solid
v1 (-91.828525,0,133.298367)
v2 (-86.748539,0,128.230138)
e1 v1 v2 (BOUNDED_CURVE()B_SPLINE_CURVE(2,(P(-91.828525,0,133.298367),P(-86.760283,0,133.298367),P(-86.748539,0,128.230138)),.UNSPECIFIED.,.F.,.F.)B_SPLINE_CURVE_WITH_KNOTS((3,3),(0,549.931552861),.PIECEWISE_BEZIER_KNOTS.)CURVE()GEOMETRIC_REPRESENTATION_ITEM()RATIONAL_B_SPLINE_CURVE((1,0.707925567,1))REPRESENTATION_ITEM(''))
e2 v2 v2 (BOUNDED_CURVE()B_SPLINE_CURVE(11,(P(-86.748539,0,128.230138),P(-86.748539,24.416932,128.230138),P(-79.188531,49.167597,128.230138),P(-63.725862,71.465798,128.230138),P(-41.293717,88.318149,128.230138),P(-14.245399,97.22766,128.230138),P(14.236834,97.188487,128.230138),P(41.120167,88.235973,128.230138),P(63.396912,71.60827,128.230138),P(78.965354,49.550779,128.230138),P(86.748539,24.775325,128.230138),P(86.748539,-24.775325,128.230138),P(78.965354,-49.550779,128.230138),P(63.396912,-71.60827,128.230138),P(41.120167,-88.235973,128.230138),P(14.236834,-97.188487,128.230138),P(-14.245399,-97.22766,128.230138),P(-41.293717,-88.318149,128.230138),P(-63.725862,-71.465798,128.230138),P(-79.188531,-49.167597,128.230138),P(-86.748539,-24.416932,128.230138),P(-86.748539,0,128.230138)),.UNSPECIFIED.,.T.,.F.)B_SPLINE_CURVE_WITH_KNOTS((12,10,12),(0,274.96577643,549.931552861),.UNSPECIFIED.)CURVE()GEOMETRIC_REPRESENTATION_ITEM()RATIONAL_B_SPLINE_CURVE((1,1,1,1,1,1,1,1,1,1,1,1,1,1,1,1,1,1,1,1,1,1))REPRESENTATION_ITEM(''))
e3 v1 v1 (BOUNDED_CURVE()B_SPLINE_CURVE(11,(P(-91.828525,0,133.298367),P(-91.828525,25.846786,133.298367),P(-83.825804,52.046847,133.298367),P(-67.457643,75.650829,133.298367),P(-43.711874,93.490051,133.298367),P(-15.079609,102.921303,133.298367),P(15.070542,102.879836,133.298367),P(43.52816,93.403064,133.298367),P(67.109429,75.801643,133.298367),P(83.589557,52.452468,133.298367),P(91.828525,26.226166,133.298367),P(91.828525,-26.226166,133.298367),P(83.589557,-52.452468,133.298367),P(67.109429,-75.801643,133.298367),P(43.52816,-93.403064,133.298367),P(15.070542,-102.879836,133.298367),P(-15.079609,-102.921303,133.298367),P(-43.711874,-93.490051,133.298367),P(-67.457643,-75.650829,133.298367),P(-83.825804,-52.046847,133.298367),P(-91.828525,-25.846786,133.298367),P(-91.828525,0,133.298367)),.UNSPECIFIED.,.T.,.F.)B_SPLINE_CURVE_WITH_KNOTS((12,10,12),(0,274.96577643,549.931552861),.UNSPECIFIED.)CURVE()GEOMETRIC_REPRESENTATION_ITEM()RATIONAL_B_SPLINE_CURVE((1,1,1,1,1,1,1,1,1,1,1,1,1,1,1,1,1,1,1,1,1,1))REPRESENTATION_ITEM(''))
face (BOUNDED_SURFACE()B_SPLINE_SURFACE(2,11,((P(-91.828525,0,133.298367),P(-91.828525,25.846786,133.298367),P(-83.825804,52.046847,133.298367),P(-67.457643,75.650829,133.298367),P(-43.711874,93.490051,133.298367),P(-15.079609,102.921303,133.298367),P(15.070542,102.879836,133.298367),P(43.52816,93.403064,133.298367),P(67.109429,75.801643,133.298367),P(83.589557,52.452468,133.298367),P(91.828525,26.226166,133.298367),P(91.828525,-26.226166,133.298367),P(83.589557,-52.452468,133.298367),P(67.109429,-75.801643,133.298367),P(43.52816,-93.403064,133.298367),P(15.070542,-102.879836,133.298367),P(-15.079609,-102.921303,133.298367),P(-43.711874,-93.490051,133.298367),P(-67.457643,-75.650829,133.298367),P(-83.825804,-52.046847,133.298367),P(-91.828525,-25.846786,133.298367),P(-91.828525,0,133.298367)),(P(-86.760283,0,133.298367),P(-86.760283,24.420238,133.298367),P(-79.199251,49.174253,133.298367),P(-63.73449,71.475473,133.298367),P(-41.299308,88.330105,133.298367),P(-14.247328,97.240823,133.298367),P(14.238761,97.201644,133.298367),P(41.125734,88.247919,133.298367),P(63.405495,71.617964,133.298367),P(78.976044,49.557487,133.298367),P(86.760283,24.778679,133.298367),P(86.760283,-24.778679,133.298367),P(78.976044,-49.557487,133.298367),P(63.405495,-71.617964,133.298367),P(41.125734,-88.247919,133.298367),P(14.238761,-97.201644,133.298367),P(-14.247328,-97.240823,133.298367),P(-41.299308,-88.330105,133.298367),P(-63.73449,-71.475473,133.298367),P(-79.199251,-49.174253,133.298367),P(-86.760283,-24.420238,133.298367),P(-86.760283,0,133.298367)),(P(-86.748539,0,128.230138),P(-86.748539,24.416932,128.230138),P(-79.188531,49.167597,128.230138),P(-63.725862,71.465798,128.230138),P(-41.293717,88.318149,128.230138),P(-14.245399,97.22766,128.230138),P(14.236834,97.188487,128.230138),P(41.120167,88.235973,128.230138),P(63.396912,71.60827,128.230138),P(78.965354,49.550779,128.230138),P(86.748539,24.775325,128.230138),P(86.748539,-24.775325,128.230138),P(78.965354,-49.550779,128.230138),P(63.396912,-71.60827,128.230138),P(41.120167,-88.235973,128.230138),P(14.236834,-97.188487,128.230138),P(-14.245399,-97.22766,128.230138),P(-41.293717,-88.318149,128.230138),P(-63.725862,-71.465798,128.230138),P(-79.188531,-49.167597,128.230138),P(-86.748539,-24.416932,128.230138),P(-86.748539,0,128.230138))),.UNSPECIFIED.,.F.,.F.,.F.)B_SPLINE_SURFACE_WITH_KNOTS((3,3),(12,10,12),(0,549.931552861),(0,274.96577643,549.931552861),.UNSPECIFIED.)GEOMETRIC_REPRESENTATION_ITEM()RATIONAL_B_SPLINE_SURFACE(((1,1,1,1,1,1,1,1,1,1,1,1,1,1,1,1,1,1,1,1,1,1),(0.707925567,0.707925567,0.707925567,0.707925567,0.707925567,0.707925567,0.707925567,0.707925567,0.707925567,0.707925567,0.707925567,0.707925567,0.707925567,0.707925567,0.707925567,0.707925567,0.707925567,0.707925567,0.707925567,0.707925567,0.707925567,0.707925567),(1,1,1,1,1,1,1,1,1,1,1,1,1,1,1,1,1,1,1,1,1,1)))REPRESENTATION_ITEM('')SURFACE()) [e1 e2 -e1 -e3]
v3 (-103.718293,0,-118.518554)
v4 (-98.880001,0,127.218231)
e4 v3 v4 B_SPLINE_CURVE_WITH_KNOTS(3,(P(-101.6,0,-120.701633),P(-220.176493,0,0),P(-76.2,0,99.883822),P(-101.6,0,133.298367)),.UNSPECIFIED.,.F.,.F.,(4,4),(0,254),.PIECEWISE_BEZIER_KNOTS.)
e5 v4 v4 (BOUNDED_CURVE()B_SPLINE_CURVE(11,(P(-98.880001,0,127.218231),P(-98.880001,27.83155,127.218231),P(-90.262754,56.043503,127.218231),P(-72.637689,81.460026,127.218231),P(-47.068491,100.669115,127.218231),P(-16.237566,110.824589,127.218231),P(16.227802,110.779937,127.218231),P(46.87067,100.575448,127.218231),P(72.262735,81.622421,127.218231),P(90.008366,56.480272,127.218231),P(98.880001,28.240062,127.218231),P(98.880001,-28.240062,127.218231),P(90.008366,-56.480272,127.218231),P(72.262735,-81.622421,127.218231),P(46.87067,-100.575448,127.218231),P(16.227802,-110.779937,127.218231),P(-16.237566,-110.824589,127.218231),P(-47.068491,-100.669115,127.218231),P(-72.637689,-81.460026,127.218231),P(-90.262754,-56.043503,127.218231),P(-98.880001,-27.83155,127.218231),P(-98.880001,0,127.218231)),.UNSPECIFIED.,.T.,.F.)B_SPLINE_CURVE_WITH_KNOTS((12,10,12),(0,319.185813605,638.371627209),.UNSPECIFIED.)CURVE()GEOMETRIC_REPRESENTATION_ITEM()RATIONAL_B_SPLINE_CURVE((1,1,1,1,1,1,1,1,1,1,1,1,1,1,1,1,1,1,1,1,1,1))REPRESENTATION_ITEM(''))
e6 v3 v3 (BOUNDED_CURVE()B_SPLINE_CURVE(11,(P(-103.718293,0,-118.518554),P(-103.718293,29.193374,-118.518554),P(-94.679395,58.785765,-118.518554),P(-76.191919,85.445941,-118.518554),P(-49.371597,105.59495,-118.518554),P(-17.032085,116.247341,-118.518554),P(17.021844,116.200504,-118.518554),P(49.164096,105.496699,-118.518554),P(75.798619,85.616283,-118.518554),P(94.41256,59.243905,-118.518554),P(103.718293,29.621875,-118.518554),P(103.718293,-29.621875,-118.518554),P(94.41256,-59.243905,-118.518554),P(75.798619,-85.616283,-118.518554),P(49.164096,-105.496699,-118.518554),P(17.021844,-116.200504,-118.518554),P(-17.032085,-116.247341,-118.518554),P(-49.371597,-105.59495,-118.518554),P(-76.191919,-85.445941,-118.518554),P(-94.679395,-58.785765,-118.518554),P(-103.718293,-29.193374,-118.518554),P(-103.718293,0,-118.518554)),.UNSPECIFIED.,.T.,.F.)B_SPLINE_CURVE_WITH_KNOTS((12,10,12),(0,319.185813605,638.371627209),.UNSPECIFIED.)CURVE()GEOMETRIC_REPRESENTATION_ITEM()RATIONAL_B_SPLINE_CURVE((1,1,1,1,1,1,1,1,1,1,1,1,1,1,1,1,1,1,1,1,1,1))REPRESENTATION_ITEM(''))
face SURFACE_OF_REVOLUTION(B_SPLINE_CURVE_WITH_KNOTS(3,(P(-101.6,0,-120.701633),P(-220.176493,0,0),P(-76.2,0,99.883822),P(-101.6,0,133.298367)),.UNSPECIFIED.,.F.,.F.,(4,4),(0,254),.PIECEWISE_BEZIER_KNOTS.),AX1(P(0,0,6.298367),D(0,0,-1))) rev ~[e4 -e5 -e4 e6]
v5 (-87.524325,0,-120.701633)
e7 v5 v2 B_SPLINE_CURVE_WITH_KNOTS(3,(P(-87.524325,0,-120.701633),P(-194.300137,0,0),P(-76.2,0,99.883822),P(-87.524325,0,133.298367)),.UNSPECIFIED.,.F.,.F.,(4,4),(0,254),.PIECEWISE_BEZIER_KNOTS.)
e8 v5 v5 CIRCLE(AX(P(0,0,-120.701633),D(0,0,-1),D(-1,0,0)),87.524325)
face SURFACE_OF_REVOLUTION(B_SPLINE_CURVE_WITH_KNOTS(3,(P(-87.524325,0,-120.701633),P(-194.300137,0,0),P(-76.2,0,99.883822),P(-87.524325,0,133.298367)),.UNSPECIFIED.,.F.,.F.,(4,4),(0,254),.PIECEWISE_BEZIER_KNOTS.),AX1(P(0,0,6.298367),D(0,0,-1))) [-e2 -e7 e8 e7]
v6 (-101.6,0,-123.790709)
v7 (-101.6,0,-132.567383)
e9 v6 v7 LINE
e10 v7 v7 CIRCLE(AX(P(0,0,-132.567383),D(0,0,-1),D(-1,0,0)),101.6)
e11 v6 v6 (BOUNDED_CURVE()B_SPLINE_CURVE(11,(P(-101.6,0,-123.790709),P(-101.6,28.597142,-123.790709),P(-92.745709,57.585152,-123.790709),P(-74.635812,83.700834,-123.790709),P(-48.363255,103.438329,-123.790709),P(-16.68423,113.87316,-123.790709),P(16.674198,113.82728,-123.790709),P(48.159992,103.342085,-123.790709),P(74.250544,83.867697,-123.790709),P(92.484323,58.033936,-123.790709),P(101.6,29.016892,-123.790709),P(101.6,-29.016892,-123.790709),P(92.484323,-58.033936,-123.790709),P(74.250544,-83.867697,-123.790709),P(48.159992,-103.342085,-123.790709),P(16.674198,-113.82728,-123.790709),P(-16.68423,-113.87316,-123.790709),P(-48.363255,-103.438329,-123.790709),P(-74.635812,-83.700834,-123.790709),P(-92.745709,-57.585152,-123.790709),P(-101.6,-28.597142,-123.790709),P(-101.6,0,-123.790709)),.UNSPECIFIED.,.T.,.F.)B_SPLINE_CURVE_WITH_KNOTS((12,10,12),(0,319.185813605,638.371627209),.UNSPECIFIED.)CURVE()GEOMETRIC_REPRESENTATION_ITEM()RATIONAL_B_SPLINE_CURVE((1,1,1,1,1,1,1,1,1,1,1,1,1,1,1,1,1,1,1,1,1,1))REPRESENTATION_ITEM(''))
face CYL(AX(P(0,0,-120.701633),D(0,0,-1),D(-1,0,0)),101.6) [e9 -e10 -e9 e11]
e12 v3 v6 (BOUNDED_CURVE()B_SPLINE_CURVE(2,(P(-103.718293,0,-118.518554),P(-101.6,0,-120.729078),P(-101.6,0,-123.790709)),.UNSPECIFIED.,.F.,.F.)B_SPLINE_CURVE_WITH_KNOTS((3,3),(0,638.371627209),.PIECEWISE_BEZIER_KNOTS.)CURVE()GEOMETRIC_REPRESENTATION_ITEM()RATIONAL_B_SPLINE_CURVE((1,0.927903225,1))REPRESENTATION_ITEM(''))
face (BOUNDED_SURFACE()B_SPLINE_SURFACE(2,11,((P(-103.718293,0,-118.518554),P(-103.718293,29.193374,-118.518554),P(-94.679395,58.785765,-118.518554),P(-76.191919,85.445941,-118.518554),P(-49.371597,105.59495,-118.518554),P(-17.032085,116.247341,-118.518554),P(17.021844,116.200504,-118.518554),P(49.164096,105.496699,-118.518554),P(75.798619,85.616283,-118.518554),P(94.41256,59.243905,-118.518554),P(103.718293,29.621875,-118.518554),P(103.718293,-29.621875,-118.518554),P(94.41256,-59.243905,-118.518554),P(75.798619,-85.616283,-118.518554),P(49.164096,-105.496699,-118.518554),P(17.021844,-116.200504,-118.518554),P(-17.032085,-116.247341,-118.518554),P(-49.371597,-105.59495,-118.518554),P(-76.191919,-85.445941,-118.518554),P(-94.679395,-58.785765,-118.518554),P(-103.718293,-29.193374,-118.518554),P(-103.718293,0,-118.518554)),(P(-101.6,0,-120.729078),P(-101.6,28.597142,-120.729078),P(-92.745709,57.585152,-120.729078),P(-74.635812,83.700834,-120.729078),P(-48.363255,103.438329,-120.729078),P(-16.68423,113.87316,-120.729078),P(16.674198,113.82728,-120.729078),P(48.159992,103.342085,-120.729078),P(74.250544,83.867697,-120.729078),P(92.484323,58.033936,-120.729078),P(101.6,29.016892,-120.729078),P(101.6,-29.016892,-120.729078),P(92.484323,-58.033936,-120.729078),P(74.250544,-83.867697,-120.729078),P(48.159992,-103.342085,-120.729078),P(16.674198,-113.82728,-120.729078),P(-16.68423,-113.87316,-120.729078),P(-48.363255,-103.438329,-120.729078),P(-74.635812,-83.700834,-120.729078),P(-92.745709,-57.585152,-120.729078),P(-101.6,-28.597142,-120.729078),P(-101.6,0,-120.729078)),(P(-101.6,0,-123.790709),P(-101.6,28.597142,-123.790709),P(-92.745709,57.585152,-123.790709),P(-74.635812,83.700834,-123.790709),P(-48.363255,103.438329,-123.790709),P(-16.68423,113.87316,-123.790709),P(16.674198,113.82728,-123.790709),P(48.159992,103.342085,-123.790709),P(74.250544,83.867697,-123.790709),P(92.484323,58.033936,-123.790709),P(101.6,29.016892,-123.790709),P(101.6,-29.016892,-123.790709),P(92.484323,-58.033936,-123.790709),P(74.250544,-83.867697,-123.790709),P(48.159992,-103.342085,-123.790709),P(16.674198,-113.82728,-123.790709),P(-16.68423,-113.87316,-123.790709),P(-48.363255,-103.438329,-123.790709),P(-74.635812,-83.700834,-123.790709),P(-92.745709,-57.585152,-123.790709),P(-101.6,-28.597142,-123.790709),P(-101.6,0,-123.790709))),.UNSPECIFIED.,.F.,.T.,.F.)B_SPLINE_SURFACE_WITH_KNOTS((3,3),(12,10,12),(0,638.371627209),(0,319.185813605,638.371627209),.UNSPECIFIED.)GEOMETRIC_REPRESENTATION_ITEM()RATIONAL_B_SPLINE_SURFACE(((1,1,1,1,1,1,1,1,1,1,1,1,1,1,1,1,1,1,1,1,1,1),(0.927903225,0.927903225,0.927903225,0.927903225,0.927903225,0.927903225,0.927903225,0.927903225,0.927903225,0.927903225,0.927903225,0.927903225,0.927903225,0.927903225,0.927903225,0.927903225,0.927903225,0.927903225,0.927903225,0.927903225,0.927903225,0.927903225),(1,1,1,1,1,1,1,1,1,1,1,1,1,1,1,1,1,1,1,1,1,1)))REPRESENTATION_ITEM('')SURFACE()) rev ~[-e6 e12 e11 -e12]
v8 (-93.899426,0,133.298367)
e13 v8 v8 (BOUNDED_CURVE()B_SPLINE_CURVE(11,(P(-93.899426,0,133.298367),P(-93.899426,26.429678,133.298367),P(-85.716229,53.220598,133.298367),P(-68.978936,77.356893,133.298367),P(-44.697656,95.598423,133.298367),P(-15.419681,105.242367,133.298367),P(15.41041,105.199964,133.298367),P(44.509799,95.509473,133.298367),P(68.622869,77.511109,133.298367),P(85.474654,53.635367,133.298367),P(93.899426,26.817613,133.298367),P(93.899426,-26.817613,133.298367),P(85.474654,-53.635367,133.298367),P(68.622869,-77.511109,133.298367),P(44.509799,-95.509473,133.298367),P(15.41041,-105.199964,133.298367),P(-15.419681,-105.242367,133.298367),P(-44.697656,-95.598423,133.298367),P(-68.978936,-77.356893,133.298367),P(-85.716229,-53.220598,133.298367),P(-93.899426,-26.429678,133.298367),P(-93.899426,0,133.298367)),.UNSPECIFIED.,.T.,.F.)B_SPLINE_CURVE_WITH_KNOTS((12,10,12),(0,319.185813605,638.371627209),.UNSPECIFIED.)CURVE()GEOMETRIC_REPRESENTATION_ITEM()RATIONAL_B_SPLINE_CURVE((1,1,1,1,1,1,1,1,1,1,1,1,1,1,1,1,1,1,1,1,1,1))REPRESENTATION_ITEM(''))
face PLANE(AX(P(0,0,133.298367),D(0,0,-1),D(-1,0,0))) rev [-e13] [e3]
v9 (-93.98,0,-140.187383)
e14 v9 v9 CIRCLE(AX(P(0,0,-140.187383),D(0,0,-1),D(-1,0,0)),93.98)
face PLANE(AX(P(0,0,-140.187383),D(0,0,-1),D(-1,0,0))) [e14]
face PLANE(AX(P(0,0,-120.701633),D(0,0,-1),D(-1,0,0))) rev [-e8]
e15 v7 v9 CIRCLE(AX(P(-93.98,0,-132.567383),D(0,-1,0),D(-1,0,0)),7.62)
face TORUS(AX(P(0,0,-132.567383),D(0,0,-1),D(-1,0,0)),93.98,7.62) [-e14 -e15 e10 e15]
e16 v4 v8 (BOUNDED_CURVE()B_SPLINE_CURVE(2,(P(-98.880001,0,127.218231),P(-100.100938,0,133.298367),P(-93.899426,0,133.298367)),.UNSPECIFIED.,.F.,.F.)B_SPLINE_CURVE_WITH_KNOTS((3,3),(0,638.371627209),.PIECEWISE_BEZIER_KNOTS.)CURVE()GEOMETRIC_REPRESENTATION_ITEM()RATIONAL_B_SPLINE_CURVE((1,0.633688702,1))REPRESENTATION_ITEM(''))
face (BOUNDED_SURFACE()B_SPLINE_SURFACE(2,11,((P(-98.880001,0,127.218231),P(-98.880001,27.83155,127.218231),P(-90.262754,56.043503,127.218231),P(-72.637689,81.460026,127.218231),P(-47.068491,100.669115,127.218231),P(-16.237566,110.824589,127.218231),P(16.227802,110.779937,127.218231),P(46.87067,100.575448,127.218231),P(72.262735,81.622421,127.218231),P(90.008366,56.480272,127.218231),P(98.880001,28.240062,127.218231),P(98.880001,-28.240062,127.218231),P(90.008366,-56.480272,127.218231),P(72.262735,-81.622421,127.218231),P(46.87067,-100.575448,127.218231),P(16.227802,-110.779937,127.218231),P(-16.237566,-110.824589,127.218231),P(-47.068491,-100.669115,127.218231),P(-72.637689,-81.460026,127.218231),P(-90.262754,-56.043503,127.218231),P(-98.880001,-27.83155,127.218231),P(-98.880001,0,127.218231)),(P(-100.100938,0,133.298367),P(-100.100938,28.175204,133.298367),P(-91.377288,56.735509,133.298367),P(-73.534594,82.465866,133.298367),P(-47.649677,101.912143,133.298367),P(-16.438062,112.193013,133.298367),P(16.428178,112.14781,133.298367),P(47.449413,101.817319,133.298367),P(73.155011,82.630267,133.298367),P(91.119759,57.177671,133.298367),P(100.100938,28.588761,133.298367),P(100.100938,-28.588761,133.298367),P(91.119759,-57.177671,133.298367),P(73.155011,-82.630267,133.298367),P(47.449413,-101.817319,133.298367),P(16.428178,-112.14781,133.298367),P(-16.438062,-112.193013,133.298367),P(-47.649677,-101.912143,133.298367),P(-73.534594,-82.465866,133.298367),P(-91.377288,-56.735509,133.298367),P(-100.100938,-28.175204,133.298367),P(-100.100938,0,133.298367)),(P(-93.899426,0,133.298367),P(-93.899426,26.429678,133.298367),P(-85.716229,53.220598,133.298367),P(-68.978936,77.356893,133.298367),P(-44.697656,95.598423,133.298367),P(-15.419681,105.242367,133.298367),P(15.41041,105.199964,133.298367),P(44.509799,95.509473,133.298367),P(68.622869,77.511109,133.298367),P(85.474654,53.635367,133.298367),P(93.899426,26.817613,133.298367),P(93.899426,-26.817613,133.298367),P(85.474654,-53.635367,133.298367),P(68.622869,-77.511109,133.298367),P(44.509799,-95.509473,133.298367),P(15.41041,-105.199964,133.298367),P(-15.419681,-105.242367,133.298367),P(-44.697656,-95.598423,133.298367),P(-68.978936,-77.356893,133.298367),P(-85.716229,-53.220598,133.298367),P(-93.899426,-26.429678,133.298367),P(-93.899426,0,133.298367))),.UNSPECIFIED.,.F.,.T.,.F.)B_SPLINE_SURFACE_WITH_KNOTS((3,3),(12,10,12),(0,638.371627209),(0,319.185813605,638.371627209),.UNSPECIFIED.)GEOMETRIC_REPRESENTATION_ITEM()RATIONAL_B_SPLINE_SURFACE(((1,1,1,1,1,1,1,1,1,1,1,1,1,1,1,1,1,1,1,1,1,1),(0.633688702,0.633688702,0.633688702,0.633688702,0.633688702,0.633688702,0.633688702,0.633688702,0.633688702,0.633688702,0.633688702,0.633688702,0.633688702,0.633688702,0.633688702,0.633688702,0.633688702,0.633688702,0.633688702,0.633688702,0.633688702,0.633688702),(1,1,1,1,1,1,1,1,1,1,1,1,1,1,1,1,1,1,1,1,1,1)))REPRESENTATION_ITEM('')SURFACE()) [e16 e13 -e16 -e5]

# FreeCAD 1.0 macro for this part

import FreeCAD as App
import Part
import Sketcher
Q = App.Units.Quantity


def edges_at(feature, points):
    """Names of the edges that pass closest to the given points."""
    edges = feature.Shape.Edges
    near = lambda p: min(range(len(edges)), key=lambda i: edges[i].distToShape(Part.Vertex(*p))[0])
    return sorted({f"Edge{near(p) + 1}" for p in points})

doc = App.newDocument("Part")
body = doc.addObject("PartDesign::Body", "Body")

sketch1 = body.newObject("Sketcher::SketchObject", "Sketch")
sketch1.AttachmentSupport = (doc.getObject("XZ_Plane"), [""])
sketch1.MapMode = "FlatFace"
sketch1.addGeometry([
    Part.BSplineCurve([App.Vector(-87.524325, -120.701633, 0), App.Vector(-194.300137, 0, 0), App.Vector(-76.2, 99.883822, 0), App.Vector(-87.524325, 133.298367, 0)], [4, 4], [0, 254], False, 3, [1, 1, 1, 1], False),
    Part.LineSegment(App.Vector(-87.524325, 133.298367, 0), App.Vector(-101.6, 133.298367, 0)),
    Part.BSplineCurve([App.Vector(-101.6, -120.701633, 0), App.Vector(-220.176493, 0, 0), App.Vector(-76.2, 99.883822, 0), App.Vector(-101.6, 133.298367, 0)], [4, 4], [0, 254], False, 3, [1, 1, 1, 1], False),
    Part.LineSegment(App.Vector(-101.6, -120.701633, 0), App.Vector(-101.6, -140.187383, 0)),
    Part.LineSegment(App.Vector(-101.6, -140.187383, 0), App.Vector(0, -140.187383, 0)),
    Part.LineSegment(App.Vector(0, -140.187383, 0), App.Vector(0, -120.701633, 0)),
    Part.LineSegment(App.Vector(0, -120.701633, 0), App.Vector(-87.524325, -120.701633, 0)),
], False)
sketch1.addConstraint([
    Sketcher.Constraint("Block", 0),
    Sketcher.Constraint("Block", 2),
    Sketcher.Constraint("Coincident", 0, 2, 1, 1),
    Sketcher.Constraint("Coincident", 1, 2, 2, 2),
    Sketcher.Constraint("Coincident", 2, 1, 3, 1),
    Sketcher.Constraint("Coincident", 3, 2, 4, 1),
    Sketcher.Constraint("Coincident", 4, 2, 5, 1),
    Sketcher.Constraint("Coincident", 5, 2, 6, 1),
    Sketcher.Constraint("Coincident", 6, 2, 0, 1),
    Sketcher.Constraint("Vertical", 3),
    Sketcher.Constraint("Horizontal", 4),
    Sketcher.Constraint("Vertical", 5),
    Sketcher.Constraint("Horizontal", 6),
    Sketcher.Constraint("PointOnObject", 4, 2, -2),
    Sketcher.Constraint("DistanceY", 3, 2, 3, 1, Q("19.48575 mm")),
])
revolution = body.newObject("PartDesign::Revolution", "Revolution")
revolution.Profile = sketch1
revolution.ReferenceAxis = (sketch1, ["V_Axis"])
revolution.Angle = 360
doc.recompute()

fillet = body.newObject("PartDesign::Fillet", "Fillet")
fillet.Base = (revolution, edges_at(revolution, [(101.6, 0, -140.187), (101.6, 0, -120.702)]))
fillet.Radius = Q("0.3 in")
doc.recompute()

fillet2 = body.newObject("PartDesign::Fillet", "Fillet001")
fillet2.Base = (fillet, edges_at(fillet, [(101.6, 0, 133.298), (87.524, 0, 133.298)]))
fillet2.Radius = Q("0.2 in")

doc.recompute()
